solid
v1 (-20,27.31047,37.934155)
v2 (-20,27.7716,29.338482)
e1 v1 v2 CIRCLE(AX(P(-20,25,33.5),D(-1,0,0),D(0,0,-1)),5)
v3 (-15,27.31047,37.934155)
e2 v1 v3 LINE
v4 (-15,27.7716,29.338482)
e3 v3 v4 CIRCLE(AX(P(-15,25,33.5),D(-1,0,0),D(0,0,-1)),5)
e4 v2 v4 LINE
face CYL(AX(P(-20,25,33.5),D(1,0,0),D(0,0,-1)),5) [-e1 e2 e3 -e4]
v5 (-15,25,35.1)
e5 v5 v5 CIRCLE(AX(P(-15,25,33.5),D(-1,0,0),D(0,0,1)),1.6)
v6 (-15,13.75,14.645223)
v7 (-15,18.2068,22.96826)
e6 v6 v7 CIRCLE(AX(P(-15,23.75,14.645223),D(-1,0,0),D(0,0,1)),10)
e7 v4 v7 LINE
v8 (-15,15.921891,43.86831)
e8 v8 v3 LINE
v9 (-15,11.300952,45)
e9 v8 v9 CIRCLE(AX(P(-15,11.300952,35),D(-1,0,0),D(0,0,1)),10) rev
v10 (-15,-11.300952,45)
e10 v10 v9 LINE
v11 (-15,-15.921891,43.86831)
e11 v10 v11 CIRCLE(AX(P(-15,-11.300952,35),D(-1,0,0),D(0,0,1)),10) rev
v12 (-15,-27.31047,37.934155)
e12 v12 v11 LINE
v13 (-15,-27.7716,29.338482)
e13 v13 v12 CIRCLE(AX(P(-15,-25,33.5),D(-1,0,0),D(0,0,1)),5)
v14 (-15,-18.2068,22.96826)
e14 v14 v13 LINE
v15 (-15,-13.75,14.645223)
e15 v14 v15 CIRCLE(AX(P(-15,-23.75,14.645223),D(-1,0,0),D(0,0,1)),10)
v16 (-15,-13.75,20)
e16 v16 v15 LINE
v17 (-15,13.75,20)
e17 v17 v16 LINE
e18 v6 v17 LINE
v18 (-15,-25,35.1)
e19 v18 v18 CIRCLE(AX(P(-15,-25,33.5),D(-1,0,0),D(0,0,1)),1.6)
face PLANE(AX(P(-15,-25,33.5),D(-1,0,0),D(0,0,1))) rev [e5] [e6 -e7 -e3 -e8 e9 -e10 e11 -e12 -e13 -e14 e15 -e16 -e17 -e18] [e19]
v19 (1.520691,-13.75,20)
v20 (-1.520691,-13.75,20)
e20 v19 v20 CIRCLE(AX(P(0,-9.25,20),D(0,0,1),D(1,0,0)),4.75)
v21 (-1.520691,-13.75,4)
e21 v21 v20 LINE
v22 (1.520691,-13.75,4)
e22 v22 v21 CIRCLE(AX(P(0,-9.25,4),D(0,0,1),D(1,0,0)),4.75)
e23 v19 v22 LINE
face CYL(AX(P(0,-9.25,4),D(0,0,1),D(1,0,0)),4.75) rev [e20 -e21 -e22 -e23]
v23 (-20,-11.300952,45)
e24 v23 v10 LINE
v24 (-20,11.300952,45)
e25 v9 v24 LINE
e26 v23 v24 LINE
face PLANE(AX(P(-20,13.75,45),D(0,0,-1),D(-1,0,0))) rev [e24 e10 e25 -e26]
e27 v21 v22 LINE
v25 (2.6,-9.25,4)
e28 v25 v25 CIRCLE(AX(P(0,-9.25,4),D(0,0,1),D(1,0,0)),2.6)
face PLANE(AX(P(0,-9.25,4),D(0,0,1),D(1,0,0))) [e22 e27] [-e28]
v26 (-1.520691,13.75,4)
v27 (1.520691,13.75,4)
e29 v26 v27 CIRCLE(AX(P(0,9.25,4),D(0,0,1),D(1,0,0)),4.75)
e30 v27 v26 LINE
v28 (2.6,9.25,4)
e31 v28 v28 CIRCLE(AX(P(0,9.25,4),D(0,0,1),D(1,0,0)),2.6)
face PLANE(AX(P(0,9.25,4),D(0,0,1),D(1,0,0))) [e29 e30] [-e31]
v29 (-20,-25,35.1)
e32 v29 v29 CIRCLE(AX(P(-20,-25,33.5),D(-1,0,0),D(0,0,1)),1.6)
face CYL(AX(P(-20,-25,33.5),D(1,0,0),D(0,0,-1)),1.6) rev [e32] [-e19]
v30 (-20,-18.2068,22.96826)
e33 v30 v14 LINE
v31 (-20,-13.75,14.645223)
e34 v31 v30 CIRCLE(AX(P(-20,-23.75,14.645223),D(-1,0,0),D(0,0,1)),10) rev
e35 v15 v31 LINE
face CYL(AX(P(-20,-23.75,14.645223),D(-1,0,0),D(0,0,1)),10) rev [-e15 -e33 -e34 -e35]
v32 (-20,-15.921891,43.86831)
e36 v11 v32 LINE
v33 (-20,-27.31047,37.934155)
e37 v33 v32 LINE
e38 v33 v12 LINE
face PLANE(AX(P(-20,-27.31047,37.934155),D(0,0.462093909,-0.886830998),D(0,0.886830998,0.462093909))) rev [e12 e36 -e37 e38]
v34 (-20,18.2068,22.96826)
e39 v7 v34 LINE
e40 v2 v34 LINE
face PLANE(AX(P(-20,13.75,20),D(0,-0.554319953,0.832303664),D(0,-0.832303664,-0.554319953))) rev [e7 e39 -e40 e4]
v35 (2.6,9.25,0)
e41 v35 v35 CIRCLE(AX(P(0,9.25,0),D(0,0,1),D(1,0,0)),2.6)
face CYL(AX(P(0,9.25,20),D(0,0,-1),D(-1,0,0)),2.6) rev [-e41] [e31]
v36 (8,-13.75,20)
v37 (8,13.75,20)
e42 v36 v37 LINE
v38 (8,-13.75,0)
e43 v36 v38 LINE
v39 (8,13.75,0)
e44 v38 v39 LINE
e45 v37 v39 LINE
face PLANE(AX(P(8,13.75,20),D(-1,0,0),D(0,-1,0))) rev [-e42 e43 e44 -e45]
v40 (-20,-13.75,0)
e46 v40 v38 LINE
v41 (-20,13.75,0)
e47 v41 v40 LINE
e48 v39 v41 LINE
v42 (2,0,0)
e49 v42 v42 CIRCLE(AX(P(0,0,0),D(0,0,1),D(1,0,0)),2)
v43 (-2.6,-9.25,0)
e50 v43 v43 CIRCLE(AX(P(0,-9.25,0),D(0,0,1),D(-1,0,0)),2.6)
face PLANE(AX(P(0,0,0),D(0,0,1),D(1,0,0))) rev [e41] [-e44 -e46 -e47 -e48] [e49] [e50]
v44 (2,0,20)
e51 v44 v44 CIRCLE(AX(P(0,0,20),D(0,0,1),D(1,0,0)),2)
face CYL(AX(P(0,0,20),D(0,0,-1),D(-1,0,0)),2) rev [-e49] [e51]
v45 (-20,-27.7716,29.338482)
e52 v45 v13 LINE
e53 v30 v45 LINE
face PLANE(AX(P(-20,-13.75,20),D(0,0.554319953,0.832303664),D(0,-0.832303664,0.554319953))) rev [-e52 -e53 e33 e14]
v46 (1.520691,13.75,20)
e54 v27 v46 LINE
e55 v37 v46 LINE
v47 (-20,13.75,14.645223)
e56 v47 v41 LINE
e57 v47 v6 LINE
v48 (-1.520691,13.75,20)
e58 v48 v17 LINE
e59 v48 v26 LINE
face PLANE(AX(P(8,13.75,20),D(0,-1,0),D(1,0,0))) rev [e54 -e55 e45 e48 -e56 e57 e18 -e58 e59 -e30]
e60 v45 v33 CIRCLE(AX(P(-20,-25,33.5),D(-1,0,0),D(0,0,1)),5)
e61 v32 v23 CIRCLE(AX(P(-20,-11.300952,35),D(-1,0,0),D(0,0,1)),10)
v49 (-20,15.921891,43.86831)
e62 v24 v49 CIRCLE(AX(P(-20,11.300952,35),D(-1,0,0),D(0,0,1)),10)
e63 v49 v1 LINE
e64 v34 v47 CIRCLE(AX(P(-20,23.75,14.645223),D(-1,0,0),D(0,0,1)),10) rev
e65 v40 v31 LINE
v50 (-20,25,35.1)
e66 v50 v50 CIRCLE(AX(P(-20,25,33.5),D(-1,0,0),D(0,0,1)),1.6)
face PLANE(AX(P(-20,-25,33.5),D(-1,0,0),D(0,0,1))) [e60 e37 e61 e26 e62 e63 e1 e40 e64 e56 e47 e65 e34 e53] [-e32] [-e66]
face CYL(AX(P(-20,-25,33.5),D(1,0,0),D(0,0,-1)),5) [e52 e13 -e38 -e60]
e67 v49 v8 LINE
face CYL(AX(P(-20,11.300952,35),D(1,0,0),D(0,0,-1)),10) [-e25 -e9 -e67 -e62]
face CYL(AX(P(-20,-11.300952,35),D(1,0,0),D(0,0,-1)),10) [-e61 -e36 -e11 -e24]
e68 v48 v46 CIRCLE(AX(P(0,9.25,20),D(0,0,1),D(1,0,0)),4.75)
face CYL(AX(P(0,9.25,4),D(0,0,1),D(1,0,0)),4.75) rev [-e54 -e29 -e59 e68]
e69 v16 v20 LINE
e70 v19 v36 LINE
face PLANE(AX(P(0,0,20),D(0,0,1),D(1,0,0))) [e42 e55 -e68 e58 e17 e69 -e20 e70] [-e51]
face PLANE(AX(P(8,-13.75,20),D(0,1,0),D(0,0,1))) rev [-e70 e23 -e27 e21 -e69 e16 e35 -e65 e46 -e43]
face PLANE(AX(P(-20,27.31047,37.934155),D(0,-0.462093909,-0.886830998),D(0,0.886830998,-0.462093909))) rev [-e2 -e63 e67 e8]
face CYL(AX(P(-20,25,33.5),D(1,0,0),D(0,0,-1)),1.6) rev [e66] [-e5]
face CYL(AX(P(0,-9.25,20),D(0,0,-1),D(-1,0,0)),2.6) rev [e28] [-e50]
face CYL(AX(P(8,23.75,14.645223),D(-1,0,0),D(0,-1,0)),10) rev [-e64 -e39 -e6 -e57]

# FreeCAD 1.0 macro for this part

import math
import FreeCAD as App
import Part
import Sketcher

V = App.Vector
Q = App.Units.Quantity


def edges_at(feature, points):
    """Names of the edges that pass closest to the given points."""
    edges = feature.Shape.Edges
    near = lambda p: min(range(len(edges)), key=lambda i: edges[i].distToShape(Part.Vertex(*p))[0])
    return sorted({f"Edge{near(p) + 1}" for p in points})


def add_polygon(sketch, points):
    """Adds a closed chain of lines whose ends are joined by coincident constraints."""
    first, n = sketch.GeometryCount, len(points)
    for a, b in zip(points, points[1:] + points[:1]):
        sketch.addGeometry(Part.LineSegment(App.Vector(*a, 0), App.Vector(*b, 0)), False)
    for i in range(n):
        sketch.addConstraint(Sketcher.Constraint("Coincident", first + i, 2, first + (i + 1) % n, 1))

doc = App.newDocument("Part")
params = doc.addObject("Spreadsheet::Sheet", "Params")
for row, (alias, value) in enumerate([
    ("sketch1_diameter", "4 mm"),
    ("sketch1_diameter2", "5.2 mm"),
    ("sketch1_width", "23 mm"),
    ("sketch1_height", "27.5 mm"),
    ("pad1_length", "20 mm"),
    ("sketch2_diameter", "9.5 mm"),
    ("pocket1_length", "16 mm"),
    ("sketch3_radius", "5 mm"),
    ("sketch3_diameter", "3.2 mm"),
    ("sketch3_height", "20 mm"),
    ("sketch3_width", "27.5 mm"),
    ("pad2_length", "5 mm"),
    ("fillet_radius", "10 mm"),
], start=1):
    params.set(f"A{row}", alias)
    params.set(f"B{row}", "=" + value)
    params.setAlias(f"B{row}", alias)

body = doc.addObject("PartDesign::Body", "Body")

sketch1 = body.newObject("Sketcher::SketchObject", "Sketch")
sketch1.AttachmentSupport = (doc.getObject("XY_Plane"), [""])
sketch1.MapMode = "FlatFace"
add_polygon(sketch1, [(-15, 13.75), (-15, -13.75), (8, -13.75), (8, 13.75)])
sketch1.addGeometry(Part.Circle(V(0, -9.25, 0), V(0, 0, 1), 2.6), False)
sketch1.addGeometry(Part.Circle(V(0, 0, 0), V(0, 0, 1), 2), False)
sketch1.addGeometry(Part.Circle(V(0, 9.25, 0), V(0, 0, 1), 2.6), False)
sketch1.addConstraint(Sketcher.Constraint("Vertical", 0))
sketch1.addConstraint(Sketcher.Constraint("Horizontal", 1))
sketch1.addConstraint(Sketcher.Constraint("Vertical", 2))
sketch1.addConstraint(Sketcher.Constraint("Horizontal", 3))
sketch1.addConstraint(Sketcher.Constraint("Coincident", 5, 3, -1, 1))
sketch1.addConstraint(Sketcher.Constraint("Equal", 4, 6))
sketch1.addConstraint(Sketcher.Constraint("Symmetric", 4, 3, 6, 3, -1, 1))
sketch1.addConstraint(Sketcher.Constraint("PointOnObject", 4, 3, -2))
sketch1.addConstraint(Sketcher.Constraint("Diameter", 5, Q("4 mm")))
sketch1.addConstraint(Sketcher.Constraint("Diameter", 4, Q("5.2 mm")))
sketch1.addConstraint(Sketcher.Constraint("DistanceX", 1, 1, 1, 2, Q("23 mm")))
sketch1.addConstraint(Sketcher.Constraint("DistanceY", 0, 2, 0, 1, Q("27.5 mm")))
sketch1.addConstraint(Sketcher.Constraint("DistanceX", 0, 2, -1, 1, Q("15 mm")))
sketch1.addConstraint(Sketcher.Constraint("DistanceY", 0, 2, 6, 3, Q("23 mm")))
sketch1.addConstraint(Sketcher.Constraint("DistanceY", 4, 3, 2, 2, Q("23 mm")))
sketch1.setExpression("Constraints[12]", "Params.sketch1_diameter")
sketch1.setExpression("Constraints[13]", "Params.sketch1_diameter2")
sketch1.setExpression("Constraints[14]", "Params.sketch1_width")
sketch1.setExpression("Constraints[15]", "Params.sketch1_height")
pad1 = body.newObject("PartDesign::Pad", "Pad")
pad1.Profile = sketch1
pad1.setExpression("Length", "Params.pad1_length")

sketch2 = body.newObject("Sketcher::SketchObject", "Sketch001")
sketch2.AttachmentSupport = (doc.getObject("XY_Plane"), [""])
sketch2.MapMode = "FlatFace"
sketch2.AttachmentOffset = App.Placement(V(0, 0, 20), App.Rotation())
sketch2.addGeometry(Part.Circle(V(0, 9.25, 0), V(0, 0, 1), 4.75), False)
sketch2.addGeometry(Part.Circle(V(0, -9.25, 0), V(0, 0, 1), 4.75), False)
sketch2.addConstraint(Sketcher.Constraint("Equal", 0, 1))
sketch2.addConstraint(Sketcher.Constraint("Symmetric", 0, 3, 1, 3, -1, 1))
sketch2.addConstraint(Sketcher.Constraint("PointOnObject", 0, 3, -2))
sketch2.addConstraint(Sketcher.Constraint("Diameter", 0, Q("9.5 mm")))
sketch2.addConstraint(Sketcher.Constraint("DistanceY", 1, 3, 0, 3, Q("18.5 mm")))
sketch2.setExpression("Constraints[3]", "Params.sketch2_diameter")
pocket1 = body.newObject("PartDesign::Pocket", "Pocket")
pocket1.Profile = sketch2
pocket1.setExpression("Length", "Params.pocket1_length")

sketch3 = body.newObject("Sketcher::SketchObject", "Sketch002")
sketch3.AttachmentSupport = (doc.getObject("YZ_Plane"), [""])
sketch3.MapMode = "FlatFace"
sketch3.AttachmentOffset = App.Placement(V(0, 0, -15), App.Rotation())
sketch3.addGeometry(Part.LineSegment(V(13.75, 20, 0), V(13.75, 0, 0)), False)
sketch3.addGeometry(Part.LineSegment(V(13.75, 0, 0), V(-13.75, 0, 0)), False)
sketch3.addGeometry(Part.LineSegment(V(-13.75, 0, 0), V(-13.75, 20, 0)), False)
sketch3.addGeometry(Part.LineSegment(V(-13.75, 20, 0), V(-27.7716, 29.338482, 0)), False)
sketch3.addGeometry(Part.ArcOfCircle(Part.Circle(V(-25, 33.5, 0), V(0, 0, 1), 5), math.radians(117.522306), math.radians(236.336112)), False)
sketch3.addGeometry(Part.LineSegment(V(-27.31047, 37.934155, 0), V(-13.75, 45, 0)), False)
sketch3.addGeometry(Part.LineSegment(V(-13.75, 45, 0), V(13.75, 45, 0)), False)
sketch3.addGeometry(Part.LineSegment(V(13.75, 45, 0), V(27.31047, 37.934155, 0)), False)
sketch3.addGeometry(Part.ArcOfCircle(Part.Circle(V(25, 33.5, 0), V(0, 0, 1), 5), math.radians(-56.336112), math.radians(62.477694)), False)
sketch3.addGeometry(Part.LineSegment(V(27.7716, 29.338482, 0), V(13.75, 20, 0)), False)
sketch3.addGeometry(Part.Circle(V(-25, 33.5, 0), V(0, 0, 1), 1.6), False)
sketch3.addGeometry(Part.Circle(V(25, 33.5, 0), V(0, 0, 1), 1.6), False)
sketch3.addConstraint(Sketcher.Constraint("Coincident", 0, 2, 1, 1))
sketch3.addConstraint(Sketcher.Constraint("Coincident", 1, 2, 2, 1))
sketch3.addConstraint(Sketcher.Constraint("Coincident", 2, 2, 3, 1))
sketch3.addConstraint(Sketcher.Constraint("Tangent", 3, 2, 4, 2))
sketch3.addConstraint(Sketcher.Constraint("Tangent", 4, 1, 5, 1))
sketch3.addConstraint(Sketcher.Constraint("Coincident", 5, 2, 6, 1))
sketch3.addConstraint(Sketcher.Constraint("Coincident", 6, 2, 7, 1))
sketch3.addConstraint(Sketcher.Constraint("Tangent", 7, 2, 8, 2))
sketch3.addConstraint(Sketcher.Constraint("Tangent", 8, 1, 9, 1))
sketch3.addConstraint(Sketcher.Constraint("Coincident", 9, 2, 0, 1))
sketch3.addConstraint(Sketcher.Constraint("Vertical", 0))
sketch3.addConstraint(Sketcher.Constraint("Horizontal", 1))
sketch3.addConstraint(Sketcher.Constraint("Vertical", 2))
sketch3.addConstraint(Sketcher.Constraint("Horizontal", 6))
sketch3.addConstraint(Sketcher.Constraint("Coincident", 10, 3, 4, 3))
sketch3.addConstraint(Sketcher.Constraint("Coincident", 11, 3, 8, 3))
sketch3.addConstraint(Sketcher.Constraint("Equal", 4, 8))
sketch3.addConstraint(Sketcher.Constraint("Equal", 10, 11))
sketch3.addConstraint(Sketcher.Constraint("Symmetric", 0, 2, 1, 2, -1, 1))
sketch3.addConstraint(Sketcher.Constraint("Symmetric", 4, 3, 8, 3, -2))
sketch3.addConstraint(Sketcher.Constraint("Horizontal", 4, 1, 7, 2))
sketch3.addConstraint(Sketcher.Constraint("Horizontal", 3, 2, 8, 1))
sketch3.addConstraint(Sketcher.Constraint("Vertical", 2, 2, 5, 2))
sketch3.addConstraint(Sketcher.Constraint("Radius", 4, Q("5 mm")))
sketch3.addConstraint(Sketcher.Constraint("Diameter", 10, Q("3.2 mm")))
sketch3.addConstraint(Sketcher.Constraint("DistanceY", 0, 2, 0, 1, Q("20 mm")))
sketch3.addConstraint(Sketcher.Constraint("DistanceX", 1, 2, 1, 1, Q("27.5 mm")))
sketch3.addConstraint(Sketcher.Constraint("DistanceX", 4, 3, -1, 1, Q("25 mm")))
sketch3.addConstraint(Sketcher.Constraint("DistanceY", -1, 1, 5, 2, Q("45 mm")))
sketch3.addConstraint(Sketcher.Constraint("DistanceY", -1, 1, 4, 3, Q("33.5 mm")))
sketch3.setExpression("Constraints[23]", "Params.sketch3_radius")
sketch3.setExpression("Constraints[24]", "Params.sketch3_diameter")
sketch3.setExpression("Constraints[25]", "Params.sketch3_height")
sketch3.setExpression("Constraints[26]", "Params.sketch3_width")
pad2 = body.newObject("PartDesign::Pad", "Pad001")
pad2.Profile = sketch3
pad2.setExpression("Length", "Params.pad2_length")
pad2.Reversed = True
doc.recompute()

fillet = body.newObject("PartDesign::Fillet", "Fillet")
fillet.Base = (pad2, edges_at(pad2, [
    (-17.5, -13.75, 20),
    (-17.5, -13.75, 45),
    (-17.5, 13.75, 45),
    (-17.5, 13.75, 20),
]))
fillet.setExpression("Radius", "Params.fillet_radius")

doc.recompute()
